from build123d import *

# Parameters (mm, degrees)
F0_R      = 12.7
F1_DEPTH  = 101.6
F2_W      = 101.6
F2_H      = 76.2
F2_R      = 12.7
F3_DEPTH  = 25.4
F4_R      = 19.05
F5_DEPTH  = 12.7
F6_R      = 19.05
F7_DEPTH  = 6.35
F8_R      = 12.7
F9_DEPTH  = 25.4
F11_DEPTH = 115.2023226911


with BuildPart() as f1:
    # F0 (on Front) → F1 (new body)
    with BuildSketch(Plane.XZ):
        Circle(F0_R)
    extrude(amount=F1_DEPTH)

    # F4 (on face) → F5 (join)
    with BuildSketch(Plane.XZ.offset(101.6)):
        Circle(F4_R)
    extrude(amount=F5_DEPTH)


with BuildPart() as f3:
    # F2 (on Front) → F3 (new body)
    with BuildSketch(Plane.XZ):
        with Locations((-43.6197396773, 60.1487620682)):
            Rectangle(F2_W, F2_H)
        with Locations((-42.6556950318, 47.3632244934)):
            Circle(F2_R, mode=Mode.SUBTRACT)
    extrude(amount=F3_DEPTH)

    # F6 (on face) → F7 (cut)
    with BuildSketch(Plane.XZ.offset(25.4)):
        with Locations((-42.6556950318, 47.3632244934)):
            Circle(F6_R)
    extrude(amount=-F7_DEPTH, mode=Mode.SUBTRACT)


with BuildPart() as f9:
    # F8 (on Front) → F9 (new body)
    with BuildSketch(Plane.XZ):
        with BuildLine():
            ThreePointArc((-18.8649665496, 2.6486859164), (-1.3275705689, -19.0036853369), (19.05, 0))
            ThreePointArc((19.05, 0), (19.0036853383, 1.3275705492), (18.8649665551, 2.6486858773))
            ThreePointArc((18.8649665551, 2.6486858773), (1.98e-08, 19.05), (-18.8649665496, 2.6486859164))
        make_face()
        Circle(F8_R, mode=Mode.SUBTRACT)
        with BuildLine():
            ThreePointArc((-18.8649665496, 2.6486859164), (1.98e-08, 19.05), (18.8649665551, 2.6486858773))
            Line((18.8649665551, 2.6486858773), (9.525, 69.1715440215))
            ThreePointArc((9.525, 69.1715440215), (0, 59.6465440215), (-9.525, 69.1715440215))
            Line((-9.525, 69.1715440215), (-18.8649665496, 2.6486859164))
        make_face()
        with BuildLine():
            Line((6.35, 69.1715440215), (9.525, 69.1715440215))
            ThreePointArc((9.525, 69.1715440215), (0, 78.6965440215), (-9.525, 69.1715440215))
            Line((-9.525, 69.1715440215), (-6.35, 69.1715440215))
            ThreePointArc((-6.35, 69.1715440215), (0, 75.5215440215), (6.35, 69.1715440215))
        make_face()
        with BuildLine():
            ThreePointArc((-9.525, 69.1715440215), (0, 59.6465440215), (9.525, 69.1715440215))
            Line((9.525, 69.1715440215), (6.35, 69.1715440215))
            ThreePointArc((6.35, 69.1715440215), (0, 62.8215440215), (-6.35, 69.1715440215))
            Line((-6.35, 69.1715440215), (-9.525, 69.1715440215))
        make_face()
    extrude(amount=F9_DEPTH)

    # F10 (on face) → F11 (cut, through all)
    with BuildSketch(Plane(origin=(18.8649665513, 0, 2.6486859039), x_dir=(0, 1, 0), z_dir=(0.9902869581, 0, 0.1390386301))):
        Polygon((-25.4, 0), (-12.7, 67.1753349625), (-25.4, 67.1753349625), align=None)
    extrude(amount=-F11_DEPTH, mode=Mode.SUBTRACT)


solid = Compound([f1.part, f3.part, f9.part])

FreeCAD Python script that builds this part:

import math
import FreeCAD as App
import Part
import Sketcher

V = App.Vector
Q = App.Units.Quantity

doc = App.newDocument("Part")
body = doc.addObject("PartDesign::Body", "Body")

# Sketch on XZ plane
sketch1 = body.newObject("Sketcher::SketchObject", "Sketch")
sketch1.AttachmentSupport = (doc.getObject("XZ_Plane"), [""])
sketch1.MapMode = "FlatFace"
sketch1.addGeometry(Part.Circle(V(0, 0, 0), V(0, 0, 1), 13), False)
sketch1.addConstraint([
    Sketcher.Constraint("Coincident", 0, 3, -1, 1),
    Sketcher.Constraint("Diameter", 0, Q("1 in")),
])
pad1 = body.newObject("PartDesign::Pad", "Pad")
pad1.Profile = sketch1
pad1.Length = Q("4 in")

# Sketch on XZ plane
sketch2 = body.newObject("Sketcher::SketchObject", "Sketch001")
sketch2.AttachmentSupport = (doc.getObject("XZ_Plane"), [""])
sketch2.MapMode = "FlatFace"
sketch2.AttachmentOffset = App.Placement(V(0, 0, 4 * 25.4), App.Rotation())
sketch2.addGeometry(Part.Circle(V(0, 0, 0), V(0, 0, 1), 19), False)
sketch2.addConstraint([
    Sketcher.Constraint("Coincident", 0, 3, -1, 1),
    Sketcher.Constraint("Diameter", 0, Q("1.5 in")),
])
pad2 = body.newObject("PartDesign::Pad", "Pad001")
pad2.Profile = sketch2
pad2.Length = Q("0.5 in")
body2 = doc.addObject("PartDesign::Body", "Body001")

# Sketch on XZ plane
sketch3 = body2.newObject("Sketcher::SketchObject", "Sketch002")
sketch3.AttachmentSupport = (doc.getObject("XZ_Plane001"), [""])
sketch3.MapMode = "FlatFace"
sketch3.addGeometry([
    Part.LineSegment(V(-94, 98, 0), V(-94, 22, 0)),  # 0
    Part.LineSegment(V(-94, 22, 0), V(7, 22, 0)),  # 1
    Part.LineSegment(V(7, 22, 0), V(7, 98, 0)),  # 2
    Part.LineSegment(V(7, 98, 0), V(-94, 98, 0)),  # 3
    Part.Circle(V(-43, 47, 0), V(0, 0, 1), 13),  # 4
], False)
sketch3.addConstraint([
    Sketcher.Constraint("Coincident", 0, 2, 1, 1),
    Sketcher.Constraint("Coincident", 1, 2, 2, 1),
    Sketcher.Constraint("Coincident", 2, 2, 3, 1),
    Sketcher.Constraint("Coincident", 3, 2, 0, 1),
    Sketcher.Constraint("Vertical", 0),
    Sketcher.Constraint("Horizontal", 1),
    Sketcher.Constraint("Vertical", 2),
    Sketcher.Constraint("Horizontal", 3),
    Sketcher.Constraint("Diameter", 4, Q("1 in")),
    Sketcher.Constraint("DistanceX", 1, 1, 1, 2, Q("4 in")),
    Sketcher.Constraint("DistanceY", 0, 2, 0, 1, Q("3 in")),
    Sketcher.Constraint("DistanceX", 0, 2, -1, 1, 94.41974),
    Sketcher.Constraint("DistanceX", 4, 3, -1, 1, 42.655695),
    Sketcher.Constraint("DistanceY", -1, 1, 4, 3, 47.363224),
    Sketcher.Constraint("DistanceY", -1, 1, 0, 2, 22.048762),
])
pad3 = body2.newObject("PartDesign::Pad", "Pad002")
pad3.Profile = sketch3
pad3.Length = Q("1 in")

# Sketch on XZ plane
sketch4 = body2.newObject("Sketcher::SketchObject", "Sketch003")
sketch4.AttachmentSupport = (doc.getObject("XZ_Plane001"), [""])
sketch4.MapMode = "FlatFace"
sketch4.AttachmentOffset = App.Placement(V(0, 0, 1 * 25.4), App.Rotation())
sketch4.addGeometry(Part.Circle(V(-43, 47, 0), V(0, 0, 1), 19), False)
sketch4.addConstraint([
    Sketcher.Constraint("Diameter", 0, Q("1.5 in")),
    Sketcher.Constraint("DistanceX", 0, 3, -1, 1, 42.655695),
    Sketcher.Constraint("DistanceY", -1, 1, 0, 3, 47.363224),
])
pocket1 = body2.newObject("PartDesign::Pocket", "Pocket")
pocket1.Profile = sketch4
pocket1.Length = Q("0.25 in")
body3 = doc.addObject("PartDesign::Body", "Body002")

# Sketch on XZ plane
sketch5 = body3.newObject("Sketcher::SketchObject", "Sketch004")
sketch5.AttachmentSupport = (doc.getObject("XZ_Plane002"), [""])
sketch5.MapMode = "FlatFace"
sketch5.addGeometry([
    Part.ArcOfCircle(Part.Circle(V(0, 0, 0), V(0, 0, 1), 19.1), math.radians(172), math.radians(360)),  # 0
    Part.ArcOfCircle(Part.Circle(V(0, 0, 0), V(0, 0, 1), 19.1), math.radians(0), math.radians(7.99)),  # 1
    Part.LineSegment(V(18.9, 2.6, 0), V(9.5, 69.2, 0)),  # 2
    Part.ArcOfCircle(Part.Circle(V(0, 69.2, 0), V(0, 0, 1), 9.5), math.radians(0), math.radians(180)),  # 3
    Part.LineSegment(V(-9.5, 69.2, 0), V(-18.9, 2.6, 0)),  # 4
    Part.Circle(V(0, 0, 0), V(0, 0, 1), 12.7),  # 5
    Part.Circle(V(0, 69.2, 0), V(0, 0, 1), 6.3),  # 6
], False)
sketch5.addConstraint([
    Sketcher.Constraint("Tangent", 0, 2, 1, 1),
    Sketcher.Constraint("Tangent", 1, 2, 2, 1),
    Sketcher.Constraint("Coincident", 2, 2, 3, 1),
    Sketcher.Constraint("Coincident", 3, 2, 4, 1),
    Sketcher.Constraint("Tangent", 4, 2, 0, 1),
    Sketcher.Constraint("Coincident", 0, 3, -1, 1),
    Sketcher.Constraint("Coincident", 5, 3, -1, 1),
    Sketcher.Constraint("Coincident", 6, 3, 3, 3),
    Sketcher.Constraint("Equal", 0, 1),
    Sketcher.Constraint("Symmetric", 2, 2, 3, 2, -2),
    Sketcher.Constraint("PointOnObject", 0, 2, -1),
    Sketcher.Constraint("Horizontal", 6, 3, 2, 2),
    Sketcher.Constraint("Diameter", 5, Q("1 in")),
    Sketcher.Constraint("Diameter", 6, Q("0.5 in")),
    Sketcher.Constraint("Radius", 0, Q("0.75 in")),
    Sketcher.Constraint("Radius", 3, Q("0.375 in")),
    Sketcher.Constraint("DistanceY", 1, 2, 3, 3, 66.522858),
])
pad4 = body3.newObject("PartDesign::Pad", "Pad003")
pad4.Profile = sketch5
pad4.Length = Q("1 in")

# Sketch on an angled plane
sketch6 = body3.newObject("Sketcher::SketchObject", "Sketch005")
sketch6.Placement = App.Placement(V(18.864967, 0, 2.648686), App.Rotation(V(0, 1, 0), V(-0.13903863, 0, 0.990286958), V(0.990286958, 0, 0.13903863), "ZXY"))
sketch6.addGeometry([
    Part.LineSegment(V(-25, 0, 0), V(-13, 67, 0)),
    Part.LineSegment(V(-13, 67, 0), V(-25, 67, 0)),
    Part.LineSegment(V(-25, 67, 0), V(-25, 0, 0)),
], False)
sketch6.addConstraint([
    Sketcher.Constraint("Coincident", 0, 2, 1, 1),
    Sketcher.Constraint("Coincident", 1, 2, 2, 1),
    Sketcher.Constraint("Coincident", 2, 2, 0, 1),
    Sketcher.Constraint("Horizontal", 1),
    Sketcher.Constraint("Vertical", 2),
    Sketcher.Constraint("PointOnObject", 2, 2, -1),
    Sketcher.Constraint("DistanceX", 1, 2, 1, 1, Q("0.5 in")),
    Sketcher.Constraint("DistanceX", 1, 2, -1, 1, Q("1 in")),
    Sketcher.Constraint("Distance", 0, 68.36531),
])
pocket2 = body3.newObject("PartDesign::Pocket", "Pocket001")
pocket2.Profile = sketch6
pocket2.Type = "ThroughAll"

doc.recompute()
